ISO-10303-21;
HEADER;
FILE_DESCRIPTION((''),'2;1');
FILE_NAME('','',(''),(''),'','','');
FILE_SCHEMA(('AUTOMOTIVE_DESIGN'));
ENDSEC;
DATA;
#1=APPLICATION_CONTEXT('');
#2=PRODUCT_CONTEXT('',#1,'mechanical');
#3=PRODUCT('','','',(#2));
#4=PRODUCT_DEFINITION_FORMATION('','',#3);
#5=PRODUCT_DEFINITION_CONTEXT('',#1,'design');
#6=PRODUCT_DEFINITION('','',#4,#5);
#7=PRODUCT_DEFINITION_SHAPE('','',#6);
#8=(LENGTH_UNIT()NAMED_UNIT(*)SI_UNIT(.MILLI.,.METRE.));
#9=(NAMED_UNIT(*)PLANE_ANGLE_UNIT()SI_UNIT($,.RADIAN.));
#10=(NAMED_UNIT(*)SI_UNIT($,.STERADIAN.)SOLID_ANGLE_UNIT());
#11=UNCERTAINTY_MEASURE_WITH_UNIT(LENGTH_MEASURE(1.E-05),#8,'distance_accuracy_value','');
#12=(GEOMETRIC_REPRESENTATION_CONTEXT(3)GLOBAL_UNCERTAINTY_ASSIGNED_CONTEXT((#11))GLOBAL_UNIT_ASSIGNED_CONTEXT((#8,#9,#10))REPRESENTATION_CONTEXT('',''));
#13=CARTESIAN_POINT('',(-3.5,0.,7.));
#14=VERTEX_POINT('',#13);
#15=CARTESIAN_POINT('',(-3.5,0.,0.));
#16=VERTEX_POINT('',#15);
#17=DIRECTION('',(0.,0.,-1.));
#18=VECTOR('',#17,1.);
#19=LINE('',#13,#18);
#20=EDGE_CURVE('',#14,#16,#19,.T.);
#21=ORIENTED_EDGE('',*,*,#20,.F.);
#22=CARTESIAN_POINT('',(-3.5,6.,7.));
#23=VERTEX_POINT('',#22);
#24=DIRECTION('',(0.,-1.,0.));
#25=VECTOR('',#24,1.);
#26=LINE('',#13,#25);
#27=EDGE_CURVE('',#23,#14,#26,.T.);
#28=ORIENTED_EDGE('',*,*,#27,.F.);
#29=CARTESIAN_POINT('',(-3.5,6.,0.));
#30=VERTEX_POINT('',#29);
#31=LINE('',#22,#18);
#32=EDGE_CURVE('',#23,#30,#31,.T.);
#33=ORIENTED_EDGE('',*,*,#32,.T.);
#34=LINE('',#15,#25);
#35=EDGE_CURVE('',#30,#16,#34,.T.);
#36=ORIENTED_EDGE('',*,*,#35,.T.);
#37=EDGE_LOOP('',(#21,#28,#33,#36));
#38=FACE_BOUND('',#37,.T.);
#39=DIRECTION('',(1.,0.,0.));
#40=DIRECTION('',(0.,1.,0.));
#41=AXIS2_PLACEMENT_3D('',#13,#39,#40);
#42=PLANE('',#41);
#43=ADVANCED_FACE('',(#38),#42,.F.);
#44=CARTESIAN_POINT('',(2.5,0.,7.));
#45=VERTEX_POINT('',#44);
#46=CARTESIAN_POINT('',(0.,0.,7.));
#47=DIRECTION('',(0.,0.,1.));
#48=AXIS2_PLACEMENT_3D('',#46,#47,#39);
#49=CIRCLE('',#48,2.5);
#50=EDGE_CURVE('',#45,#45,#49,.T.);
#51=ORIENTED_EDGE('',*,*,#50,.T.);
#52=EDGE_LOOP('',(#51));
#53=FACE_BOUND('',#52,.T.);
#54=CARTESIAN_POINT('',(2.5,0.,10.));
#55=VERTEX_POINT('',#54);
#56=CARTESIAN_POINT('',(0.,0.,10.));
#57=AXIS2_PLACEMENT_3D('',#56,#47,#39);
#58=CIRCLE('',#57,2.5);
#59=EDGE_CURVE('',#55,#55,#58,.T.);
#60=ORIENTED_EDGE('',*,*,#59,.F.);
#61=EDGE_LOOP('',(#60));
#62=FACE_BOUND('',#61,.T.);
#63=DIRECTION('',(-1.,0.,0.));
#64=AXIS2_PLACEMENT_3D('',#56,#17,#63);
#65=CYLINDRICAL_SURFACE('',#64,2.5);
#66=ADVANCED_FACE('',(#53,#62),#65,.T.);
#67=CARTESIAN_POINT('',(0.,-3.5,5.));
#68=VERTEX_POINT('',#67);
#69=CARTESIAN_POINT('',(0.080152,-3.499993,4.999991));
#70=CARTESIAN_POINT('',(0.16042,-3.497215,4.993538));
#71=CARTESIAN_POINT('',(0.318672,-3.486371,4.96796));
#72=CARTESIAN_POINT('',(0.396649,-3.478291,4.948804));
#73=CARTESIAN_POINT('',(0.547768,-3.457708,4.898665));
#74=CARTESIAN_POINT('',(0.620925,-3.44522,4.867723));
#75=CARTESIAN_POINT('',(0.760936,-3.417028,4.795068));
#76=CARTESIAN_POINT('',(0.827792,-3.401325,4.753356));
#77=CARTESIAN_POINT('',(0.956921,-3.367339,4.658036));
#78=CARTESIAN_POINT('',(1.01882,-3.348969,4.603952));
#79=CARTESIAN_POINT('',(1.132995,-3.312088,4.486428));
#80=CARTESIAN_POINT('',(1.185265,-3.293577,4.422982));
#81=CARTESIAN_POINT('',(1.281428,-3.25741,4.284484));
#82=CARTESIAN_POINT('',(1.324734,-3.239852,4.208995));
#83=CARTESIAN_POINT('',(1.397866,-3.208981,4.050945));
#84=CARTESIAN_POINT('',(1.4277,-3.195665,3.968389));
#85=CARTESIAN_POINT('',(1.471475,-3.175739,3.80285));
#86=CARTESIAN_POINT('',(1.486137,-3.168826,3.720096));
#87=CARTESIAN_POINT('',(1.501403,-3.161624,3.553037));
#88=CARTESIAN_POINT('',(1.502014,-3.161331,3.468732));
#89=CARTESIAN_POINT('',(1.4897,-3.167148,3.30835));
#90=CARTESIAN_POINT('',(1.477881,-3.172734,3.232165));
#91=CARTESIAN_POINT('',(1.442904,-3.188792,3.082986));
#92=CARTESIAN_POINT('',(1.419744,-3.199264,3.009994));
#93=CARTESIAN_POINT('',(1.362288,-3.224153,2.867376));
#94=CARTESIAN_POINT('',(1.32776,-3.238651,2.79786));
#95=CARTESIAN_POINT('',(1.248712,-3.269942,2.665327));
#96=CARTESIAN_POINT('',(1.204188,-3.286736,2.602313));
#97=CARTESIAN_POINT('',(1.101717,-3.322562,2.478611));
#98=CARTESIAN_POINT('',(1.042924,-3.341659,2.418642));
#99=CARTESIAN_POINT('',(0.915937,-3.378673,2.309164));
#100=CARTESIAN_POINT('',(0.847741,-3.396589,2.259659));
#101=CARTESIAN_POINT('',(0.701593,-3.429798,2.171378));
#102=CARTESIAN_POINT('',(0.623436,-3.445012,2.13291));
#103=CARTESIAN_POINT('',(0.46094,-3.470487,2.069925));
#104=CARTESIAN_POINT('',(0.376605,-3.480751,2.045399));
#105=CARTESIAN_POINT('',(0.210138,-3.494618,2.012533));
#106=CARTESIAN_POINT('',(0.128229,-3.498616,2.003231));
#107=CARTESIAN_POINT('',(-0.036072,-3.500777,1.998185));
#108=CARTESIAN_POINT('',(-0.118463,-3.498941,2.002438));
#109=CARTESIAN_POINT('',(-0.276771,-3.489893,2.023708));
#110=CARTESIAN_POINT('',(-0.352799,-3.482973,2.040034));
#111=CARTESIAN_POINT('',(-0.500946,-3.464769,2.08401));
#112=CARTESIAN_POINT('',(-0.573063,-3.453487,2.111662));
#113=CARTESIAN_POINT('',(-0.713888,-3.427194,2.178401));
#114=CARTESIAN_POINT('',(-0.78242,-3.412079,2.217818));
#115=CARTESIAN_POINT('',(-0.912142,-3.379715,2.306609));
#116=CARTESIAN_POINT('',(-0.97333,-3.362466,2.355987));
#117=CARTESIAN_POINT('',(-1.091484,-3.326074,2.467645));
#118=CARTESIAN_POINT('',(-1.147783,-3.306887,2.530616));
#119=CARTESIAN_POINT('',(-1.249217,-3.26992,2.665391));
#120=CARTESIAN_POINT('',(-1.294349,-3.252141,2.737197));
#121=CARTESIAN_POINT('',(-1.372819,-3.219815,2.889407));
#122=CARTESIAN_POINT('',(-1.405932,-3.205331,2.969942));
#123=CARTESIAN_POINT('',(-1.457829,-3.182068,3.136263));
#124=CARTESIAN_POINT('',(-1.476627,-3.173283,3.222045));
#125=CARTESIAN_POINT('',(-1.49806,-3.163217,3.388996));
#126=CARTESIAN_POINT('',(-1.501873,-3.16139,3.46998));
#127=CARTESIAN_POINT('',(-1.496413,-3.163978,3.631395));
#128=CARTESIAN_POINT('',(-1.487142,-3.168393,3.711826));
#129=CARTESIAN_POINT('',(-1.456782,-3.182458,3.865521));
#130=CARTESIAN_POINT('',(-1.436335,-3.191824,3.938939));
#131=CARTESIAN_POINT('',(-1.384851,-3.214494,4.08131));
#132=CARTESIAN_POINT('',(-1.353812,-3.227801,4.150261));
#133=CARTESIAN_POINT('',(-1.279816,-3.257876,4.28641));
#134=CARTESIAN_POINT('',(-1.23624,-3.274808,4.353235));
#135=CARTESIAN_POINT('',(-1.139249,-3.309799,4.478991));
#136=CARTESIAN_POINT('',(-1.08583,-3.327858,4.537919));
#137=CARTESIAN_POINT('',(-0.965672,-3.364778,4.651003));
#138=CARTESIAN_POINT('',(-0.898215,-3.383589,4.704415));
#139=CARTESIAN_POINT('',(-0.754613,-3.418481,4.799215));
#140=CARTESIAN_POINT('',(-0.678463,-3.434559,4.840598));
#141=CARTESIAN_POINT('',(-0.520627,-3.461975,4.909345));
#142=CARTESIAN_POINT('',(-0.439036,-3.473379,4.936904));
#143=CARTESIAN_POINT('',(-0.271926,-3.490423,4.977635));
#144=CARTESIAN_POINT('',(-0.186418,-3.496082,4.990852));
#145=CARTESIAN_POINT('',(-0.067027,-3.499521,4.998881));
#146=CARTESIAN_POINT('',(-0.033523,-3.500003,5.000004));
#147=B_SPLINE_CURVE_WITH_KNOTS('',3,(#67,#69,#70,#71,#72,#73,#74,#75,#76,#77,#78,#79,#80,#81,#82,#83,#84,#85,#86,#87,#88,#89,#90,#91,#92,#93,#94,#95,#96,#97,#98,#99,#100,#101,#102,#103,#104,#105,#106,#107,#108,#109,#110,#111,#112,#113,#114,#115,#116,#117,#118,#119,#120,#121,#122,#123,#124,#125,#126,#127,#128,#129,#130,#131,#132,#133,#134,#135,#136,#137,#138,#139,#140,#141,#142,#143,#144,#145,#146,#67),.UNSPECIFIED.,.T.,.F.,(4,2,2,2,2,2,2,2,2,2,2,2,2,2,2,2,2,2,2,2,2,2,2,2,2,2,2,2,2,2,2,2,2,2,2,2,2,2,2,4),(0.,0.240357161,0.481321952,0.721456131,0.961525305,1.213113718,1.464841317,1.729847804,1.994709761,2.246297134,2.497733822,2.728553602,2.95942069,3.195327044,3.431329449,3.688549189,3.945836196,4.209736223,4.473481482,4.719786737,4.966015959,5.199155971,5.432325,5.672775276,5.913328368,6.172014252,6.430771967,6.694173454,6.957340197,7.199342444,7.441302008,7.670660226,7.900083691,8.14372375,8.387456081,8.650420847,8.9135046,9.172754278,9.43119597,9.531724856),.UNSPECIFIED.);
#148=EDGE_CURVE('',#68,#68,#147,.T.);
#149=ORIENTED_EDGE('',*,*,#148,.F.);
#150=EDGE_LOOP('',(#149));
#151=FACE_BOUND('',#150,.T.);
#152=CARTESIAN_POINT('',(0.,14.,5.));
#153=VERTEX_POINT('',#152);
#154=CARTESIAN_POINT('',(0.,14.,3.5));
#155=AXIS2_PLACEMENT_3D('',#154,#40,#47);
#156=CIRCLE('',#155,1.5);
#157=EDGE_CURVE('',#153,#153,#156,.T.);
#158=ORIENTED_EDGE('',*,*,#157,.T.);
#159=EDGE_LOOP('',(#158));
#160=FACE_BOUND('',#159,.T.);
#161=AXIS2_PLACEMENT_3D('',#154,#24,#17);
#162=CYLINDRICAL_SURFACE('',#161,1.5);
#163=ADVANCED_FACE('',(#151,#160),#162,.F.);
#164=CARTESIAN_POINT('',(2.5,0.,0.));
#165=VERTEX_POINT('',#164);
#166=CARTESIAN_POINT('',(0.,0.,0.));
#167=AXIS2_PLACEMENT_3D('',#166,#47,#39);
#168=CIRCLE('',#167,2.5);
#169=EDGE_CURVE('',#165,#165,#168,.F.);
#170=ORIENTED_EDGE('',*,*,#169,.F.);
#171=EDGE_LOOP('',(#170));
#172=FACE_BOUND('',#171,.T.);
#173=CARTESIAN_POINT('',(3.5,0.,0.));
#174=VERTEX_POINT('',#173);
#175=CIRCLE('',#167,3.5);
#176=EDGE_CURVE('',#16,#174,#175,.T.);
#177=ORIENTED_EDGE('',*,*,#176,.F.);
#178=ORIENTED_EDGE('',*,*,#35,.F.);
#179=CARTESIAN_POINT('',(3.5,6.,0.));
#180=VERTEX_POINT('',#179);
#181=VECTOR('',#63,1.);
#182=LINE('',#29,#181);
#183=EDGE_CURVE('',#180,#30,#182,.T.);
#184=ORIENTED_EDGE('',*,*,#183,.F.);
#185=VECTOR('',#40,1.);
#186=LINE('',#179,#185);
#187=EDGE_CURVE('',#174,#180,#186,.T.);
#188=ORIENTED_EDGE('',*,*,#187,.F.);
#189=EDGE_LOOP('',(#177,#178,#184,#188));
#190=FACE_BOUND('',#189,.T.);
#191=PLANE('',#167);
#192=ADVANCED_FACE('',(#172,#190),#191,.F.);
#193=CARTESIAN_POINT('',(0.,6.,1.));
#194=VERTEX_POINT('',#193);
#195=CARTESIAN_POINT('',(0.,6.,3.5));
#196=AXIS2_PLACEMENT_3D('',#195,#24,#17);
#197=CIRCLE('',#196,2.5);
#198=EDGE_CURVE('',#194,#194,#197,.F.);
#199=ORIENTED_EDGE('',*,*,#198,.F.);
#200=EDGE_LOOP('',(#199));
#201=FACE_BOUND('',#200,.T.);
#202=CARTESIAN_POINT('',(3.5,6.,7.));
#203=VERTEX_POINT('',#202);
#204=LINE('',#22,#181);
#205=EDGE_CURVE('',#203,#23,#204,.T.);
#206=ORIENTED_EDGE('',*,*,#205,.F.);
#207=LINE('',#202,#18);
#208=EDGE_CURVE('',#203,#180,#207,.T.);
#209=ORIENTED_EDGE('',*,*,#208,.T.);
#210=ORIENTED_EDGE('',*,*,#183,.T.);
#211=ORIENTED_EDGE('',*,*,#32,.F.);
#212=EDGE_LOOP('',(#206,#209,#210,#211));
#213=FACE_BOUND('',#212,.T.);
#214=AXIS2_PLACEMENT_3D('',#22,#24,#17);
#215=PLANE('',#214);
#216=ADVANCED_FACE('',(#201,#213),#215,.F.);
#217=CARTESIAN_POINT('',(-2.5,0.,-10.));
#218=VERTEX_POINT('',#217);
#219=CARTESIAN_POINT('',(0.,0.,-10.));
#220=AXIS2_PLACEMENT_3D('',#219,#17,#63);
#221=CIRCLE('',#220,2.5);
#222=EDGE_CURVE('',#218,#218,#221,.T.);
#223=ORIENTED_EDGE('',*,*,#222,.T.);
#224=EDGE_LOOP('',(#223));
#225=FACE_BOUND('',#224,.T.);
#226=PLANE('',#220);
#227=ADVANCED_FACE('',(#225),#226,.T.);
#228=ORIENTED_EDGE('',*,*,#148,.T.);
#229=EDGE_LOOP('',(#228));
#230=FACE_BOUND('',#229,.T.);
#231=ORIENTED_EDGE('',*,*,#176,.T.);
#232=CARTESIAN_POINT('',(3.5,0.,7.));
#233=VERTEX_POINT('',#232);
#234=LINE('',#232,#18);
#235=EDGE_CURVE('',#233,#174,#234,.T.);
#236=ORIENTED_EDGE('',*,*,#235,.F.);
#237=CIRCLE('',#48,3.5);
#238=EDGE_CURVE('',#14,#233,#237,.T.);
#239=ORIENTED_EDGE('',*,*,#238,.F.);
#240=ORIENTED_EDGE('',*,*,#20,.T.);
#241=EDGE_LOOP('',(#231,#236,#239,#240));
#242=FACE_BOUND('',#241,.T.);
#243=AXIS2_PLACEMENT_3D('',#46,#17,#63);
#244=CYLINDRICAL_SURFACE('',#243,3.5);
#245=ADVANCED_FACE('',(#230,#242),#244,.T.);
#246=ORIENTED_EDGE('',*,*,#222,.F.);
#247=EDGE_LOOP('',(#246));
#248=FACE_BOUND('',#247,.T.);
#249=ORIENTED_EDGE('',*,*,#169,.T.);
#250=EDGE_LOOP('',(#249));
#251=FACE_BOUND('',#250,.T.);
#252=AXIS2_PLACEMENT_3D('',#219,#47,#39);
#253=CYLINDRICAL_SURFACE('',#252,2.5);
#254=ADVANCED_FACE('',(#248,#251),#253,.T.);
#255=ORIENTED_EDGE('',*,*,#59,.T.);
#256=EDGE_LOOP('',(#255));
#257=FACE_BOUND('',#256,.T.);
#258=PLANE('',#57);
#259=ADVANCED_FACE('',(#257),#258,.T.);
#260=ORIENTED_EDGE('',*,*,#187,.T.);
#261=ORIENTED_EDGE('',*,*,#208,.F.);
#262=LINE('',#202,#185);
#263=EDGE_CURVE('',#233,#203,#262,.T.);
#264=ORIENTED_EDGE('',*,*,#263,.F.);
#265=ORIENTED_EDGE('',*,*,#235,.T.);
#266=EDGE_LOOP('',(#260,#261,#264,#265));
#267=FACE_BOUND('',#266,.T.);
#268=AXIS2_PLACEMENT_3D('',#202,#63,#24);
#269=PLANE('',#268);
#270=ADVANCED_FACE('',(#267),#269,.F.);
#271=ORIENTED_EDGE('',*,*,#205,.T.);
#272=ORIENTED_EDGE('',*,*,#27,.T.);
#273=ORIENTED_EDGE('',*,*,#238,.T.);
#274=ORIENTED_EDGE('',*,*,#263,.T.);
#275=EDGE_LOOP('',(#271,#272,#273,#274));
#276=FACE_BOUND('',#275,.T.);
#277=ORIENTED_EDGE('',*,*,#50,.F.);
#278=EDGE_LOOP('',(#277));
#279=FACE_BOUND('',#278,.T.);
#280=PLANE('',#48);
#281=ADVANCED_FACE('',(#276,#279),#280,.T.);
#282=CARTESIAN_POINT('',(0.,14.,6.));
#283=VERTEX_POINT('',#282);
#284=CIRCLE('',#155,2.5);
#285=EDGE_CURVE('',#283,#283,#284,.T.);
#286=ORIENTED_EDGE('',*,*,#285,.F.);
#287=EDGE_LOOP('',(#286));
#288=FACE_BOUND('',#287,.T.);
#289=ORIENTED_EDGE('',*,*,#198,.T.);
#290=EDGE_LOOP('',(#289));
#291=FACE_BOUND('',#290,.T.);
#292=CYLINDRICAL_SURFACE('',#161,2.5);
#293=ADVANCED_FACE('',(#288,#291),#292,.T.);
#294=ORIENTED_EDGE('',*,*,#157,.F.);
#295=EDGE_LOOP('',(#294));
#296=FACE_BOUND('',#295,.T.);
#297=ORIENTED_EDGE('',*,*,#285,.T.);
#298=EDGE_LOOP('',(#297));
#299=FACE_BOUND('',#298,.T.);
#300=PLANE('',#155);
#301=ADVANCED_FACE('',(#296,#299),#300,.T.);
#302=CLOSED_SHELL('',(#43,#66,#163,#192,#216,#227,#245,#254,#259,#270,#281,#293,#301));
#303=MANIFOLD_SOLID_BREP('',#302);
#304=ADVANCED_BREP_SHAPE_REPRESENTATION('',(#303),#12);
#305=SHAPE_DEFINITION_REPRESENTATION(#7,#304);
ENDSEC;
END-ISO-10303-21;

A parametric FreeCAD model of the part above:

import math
import FreeCAD as App
import Part
import Sketcher
from FreeCAD import Vector

doc = App.newDocument("Part")
body = doc.addObject("PartDesign::Body", "Body")

sketch1 = body.newObject("Sketcher::SketchObject", "Sketch")
sketch1.AttachmentSupport = (doc.getObject("XY_Plane"), [""])
sketch1.MapMode = "FlatFace"
sketch1.addGeometry([
    Part.LineSegment(Vector(-3.5, 6, 0), Vector(-3.5, 0, 0)),
    Part.ArcOfCircle(Part.Circle(Vector(0, 0, 0), Vector(0, 0, 1), 3.5), math.radians(180), math.radians(360)),
    Part.LineSegment(Vector(3.5, 0, 0), Vector(3.5, 6, 0)),
    Part.LineSegment(Vector(3.5, 6, 0), Vector(-3.5, 6, 0)),
], False)
sketch1.addConstraint([
    Sketcher.Constraint("Tangent", 0, 2, 1, 1),
    Sketcher.Constraint("Tangent", 1, 2, 2, 1),
    Sketcher.Constraint("Coincident", 2, 2, 3, 1),
    Sketcher.Constraint("Coincident", 3, 2, 0, 1),
    Sketcher.Constraint("Vertical", 0),
    Sketcher.Constraint("Vertical", 2),
    Sketcher.Constraint("Horizontal", 3),
    Sketcher.Constraint("Coincident", 1, 3, -1, 1),
    Sketcher.Constraint("Radius", 1, 3.5),
    Sketcher.Constraint("DistanceY", 0, 2, 0, 1, 6.0),
])
pad1 = body.newObject("PartDesign::Pad", "Pad")
pad1.Profile = sketch1
pad1.Length = 7

sketch2 = body.newObject("Sketcher::SketchObject", "Sketch001")
sketch2.AttachmentSupport = (doc.getObject("XY_Plane"), [""])
sketch2.MapMode = "FlatFace"
sketch2.AttachmentOffset = App.Placement(Vector(0, 0, 7), App.Rotation())
sketch2.addGeometry(Part.Circle(Vector(0, 0, 0), Vector(0, 0, 1), 2.5), False)
sketch2.addConstraint([
    Sketcher.Constraint("Coincident", 0, 3, -1, 1),
    Sketcher.Constraint("Diameter", 0, 5.0),
])
pad2 = body.newObject("PartDesign::Pad", "Pad001")
pad2.Profile = sketch2
pad2.Length = 3

sketch3 = body.newObject("Sketcher::SketchObject", "Sketch002")
sketch3.AttachmentSupport = (doc.getObject("XY_Plane"), [""])
sketch3.MapMode = "FlatFace"
sketch3.AttachmentOffset = App.Placement(Vector(0, 0, -10), App.Rotation())
sketch3.addGeometry(Part.Circle(Vector(0, 0, 0), Vector(0, 0, 1), 2.5), False)
sketch3.addConstraint([
    Sketcher.Constraint("Coincident", 0, 3, -1, 1),
    Sketcher.Constraint("Diameter", 0, 5.0),
])
pad3 = body.newObject("PartDesign::Pad", "Pad002")
pad3.Profile = sketch3
pad3.Length = 10

sketch4 = body.newObject("Sketcher::SketchObject", "Sketch003")
sketch4.AttachmentSupport = (doc.getObject("XZ_Plane"), [""])
sketch4.MapMode = "FlatFace"
sketch4.AttachmentOffset = App.Placement(Vector(0, 0, -6), App.Rotation())
sketch4.addGeometry([
    Part.Circle(Vector(0, 3.5, 0), Vector(0, 0, 1), 2.5),
    Part.Circle(Vector(0, 3.5, 0), Vector(0, 0, 1), 1.5),
], False)
sketch4.addConstraint([
    Sketcher.Constraint("Coincident", 1, 3, 0, 3),
    Sketcher.Constraint("PointOnObject", 0, 3, -2),
    Sketcher.Constraint("Diameter", 0, 5.0),
    Sketcher.Constraint("Diameter", 1, 3.0),
    Sketcher.Constraint("DistanceY", -1, 1, 0, 3, 3.5),
])
pad4 = body.newObject("PartDesign::Pad", "Pad003")
pad4.Profile = sketch4
pad4.Length = 8
pad4.Reversed = True

sketch5 = body.newObject("Sketcher::SketchObject", "Sketch004")
sketch5.AttachmentSupport = (doc.getObject("XZ_Plane"), [""])
sketch5.MapMode = "FlatFace"
sketch5.AttachmentOffset = App.Placement(Vector(0, 0, -6), App.Rotation())
sketch5.addGeometry(Part.Circle(Vector(0, 3.5, 0), Vector(0, 0, 1), 1.5), False)
sketch5.addConstraint([
    Sketcher.Constraint("PointOnObject", 0, 3, -2),
    Sketcher.Constraint("Diameter", 0, 3.0),
    Sketcher.Constraint("DistanceY", -1, 1, 0, 3, 3.5),
])
pocket1 = body.newObject("PartDesign::Pocket", "Pocket")
pocket1.Profile = sketch5
pocket1.Type = "ThroughAll"
pocket1.Reversed = True

doc.recompute()
